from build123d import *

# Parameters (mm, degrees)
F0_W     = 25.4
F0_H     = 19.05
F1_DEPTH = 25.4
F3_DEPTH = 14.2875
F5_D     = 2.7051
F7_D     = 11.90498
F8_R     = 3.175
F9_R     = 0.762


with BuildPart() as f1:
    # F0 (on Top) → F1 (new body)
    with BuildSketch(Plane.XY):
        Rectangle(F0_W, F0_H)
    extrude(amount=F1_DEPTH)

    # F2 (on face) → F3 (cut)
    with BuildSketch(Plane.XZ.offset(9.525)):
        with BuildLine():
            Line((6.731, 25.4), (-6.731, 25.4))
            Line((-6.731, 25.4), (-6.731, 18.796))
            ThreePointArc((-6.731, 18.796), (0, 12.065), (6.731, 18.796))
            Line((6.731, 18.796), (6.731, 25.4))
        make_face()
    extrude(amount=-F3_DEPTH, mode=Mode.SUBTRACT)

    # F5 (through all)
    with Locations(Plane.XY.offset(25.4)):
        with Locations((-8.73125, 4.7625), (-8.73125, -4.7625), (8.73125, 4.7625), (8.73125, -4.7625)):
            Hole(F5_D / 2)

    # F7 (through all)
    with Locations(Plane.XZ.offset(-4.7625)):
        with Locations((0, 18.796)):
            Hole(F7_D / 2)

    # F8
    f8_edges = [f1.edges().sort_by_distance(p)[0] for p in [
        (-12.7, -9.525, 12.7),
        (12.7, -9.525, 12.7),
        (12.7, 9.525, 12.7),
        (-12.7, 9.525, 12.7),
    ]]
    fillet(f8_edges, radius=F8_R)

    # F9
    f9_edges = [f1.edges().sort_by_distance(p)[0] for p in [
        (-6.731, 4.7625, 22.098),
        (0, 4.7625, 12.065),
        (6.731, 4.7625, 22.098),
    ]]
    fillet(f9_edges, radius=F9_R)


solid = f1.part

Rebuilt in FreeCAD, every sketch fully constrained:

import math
import FreeCAD as App
import Part
import Sketcher
from FreeCAD import Vector
Q = App.Units.Quantity


def edges_at(feature, points):
    """Names of the edges that pass closest to the given points."""
    edges = feature.Shape.Edges
    near = lambda p: min(range(len(edges)), key=lambda i: edges[i].distToShape(Part.Vertex(*p))[0])
    return sorted({f"Edge{near(p) + 1}" for p in points})

doc = App.newDocument("Part")
body = doc.addObject("PartDesign::Body", "Body")

# Sketch on XY plane
sketch1 = body.newObject("Sketcher::SketchObject", "Sketch")
sketch1.AttachmentSupport = (doc.getObject("XY_Plane"), [""])
sketch1.MapMode = "FlatFace"
sketch1.addGeometry([
    Part.LineSegment(Vector(-12.7, 9.525, 0), Vector(-12.7, -9.525, 0)),
    Part.LineSegment(Vector(-12.7, -9.525, 0), Vector(12.7, -9.525, 0)),
    Part.LineSegment(Vector(12.7, -9.525, 0), Vector(12.7, 9.525, 0)),
    Part.LineSegment(Vector(12.7, 9.525, 0), Vector(-12.7, 9.525, 0)),
], False)
sketch1.addConstraint([
    Sketcher.Constraint("Coincident", 0, 2, 1, 1),
    Sketcher.Constraint("Coincident", 1, 2, 2, 1),
    Sketcher.Constraint("Coincident", 2, 2, 3, 1),
    Sketcher.Constraint("Coincident", 3, 2, 0, 1),
    Sketcher.Constraint("Vertical", 0),
    Sketcher.Constraint("Horizontal", 1),
    Sketcher.Constraint("Vertical", 2),
    Sketcher.Constraint("Horizontal", 3),
    Sketcher.Constraint("Symmetric", 0, 2, 2, 2, -1, 1),
    Sketcher.Constraint("DistanceX", 1, 1, 1, 2, Q("1 in")),
    Sketcher.Constraint("DistanceY", 0, 2, 0, 1, Q("0.75 in")),
])
pad1 = body.newObject("PartDesign::Pad", "Pad")
pad1.Profile = sketch1
pad1.Length = Q("1 in")

# Sketch on XZ plane
sketch2 = body.newObject("Sketcher::SketchObject", "Sketch001")
sketch2.AttachmentSupport = (doc.getObject("XZ_Plane"), [""])
sketch2.MapMode = "FlatFace"
sketch2.AttachmentOffset = App.Placement(Vector(0, 0, 0.375 * 25.4), App.Rotation())
sketch2.addGeometry([
    Part.LineSegment(Vector(6.731, 25.4, 0), Vector(-6.731, 25.4, 0)),
    Part.LineSegment(Vector(-6.731, 25.4, 0), Vector(-6.731, 18.796, 0)),
    Part.ArcOfCircle(Part.Circle(Vector(0, 18.796, 0), Vector(0, 0, 1), 6.731), math.radians(180), math.radians(360)),
    Part.LineSegment(Vector(6.731, 18.796, 0), Vector(6.731, 25.4, 0)),
], False)
sketch2.addConstraint([
    Sketcher.Constraint("Coincident", 0, 2, 1, 1),
    Sketcher.Constraint("Tangent", 1, 2, 2, 1),
    Sketcher.Constraint("Tangent", 2, 2, 3, 1),
    Sketcher.Constraint("Coincident", 3, 2, 0, 1),
    Sketcher.Constraint("Horizontal", 0),
    Sketcher.Constraint("Vertical", 1),
    Sketcher.Constraint("Vertical", 3),
    Sketcher.Constraint("PointOnObject", 2, 3, -2),
    Sketcher.Constraint("DistanceY", -1, 1, 0, 2, Q("1 in")),
    Sketcher.Constraint("Radius", 2, Q("0.265 in")),
    Sketcher.Constraint("DistanceY", 1, 2, 1, 1, Q("0.26 in")),
])
pocket1 = body.newObject("PartDesign::Pocket", "Pocket")
pocket1.Profile = sketch2
pocket1.Length = Q("0.5625 in")

# Sketch on XY plane
sketch3 = body.newObject("Sketcher::SketchObject", "Sketch002")
sketch3.AttachmentSupport = (doc.getObject("XY_Plane"), [""])
sketch3.MapMode = "FlatFace"
sketch3.AttachmentOffset = App.Placement(Vector(0, 0, 1 * 25.4), App.Rotation())
sketch3.addGeometry([
    Part.Circle(Vector(-8.73125, 4.7625, 0), Vector(0, 0, 1), 1.35255),
    Part.Circle(Vector(-8.73125, -4.7625, 0), Vector(0, 0, 1), 1.35255),
    Part.Circle(Vector(8.73125, 4.7625, 0), Vector(0, 0, 1), 1.35255),
    Part.Circle(Vector(8.73125, -4.7625, 0), Vector(0, 0, 1), 1.35255),
], False)
sketch3.addConstraint([
    Sketcher.Constraint("Equal", 0, 1),
    Sketcher.Constraint("Equal", 1, 2),
    Sketcher.Constraint("Equal", 2, 3),
    Sketcher.Constraint("Symmetric", 1, 3, 2, 3, -1, 1),
    Sketcher.Constraint("Symmetric", 0, 3, 3, 3, -1, 1),
    Sketcher.Constraint("Symmetric", 0, 3, 2, 3, -2),
    Sketcher.Constraint("Diameter", 0, Q("0.1065 in")),
    Sketcher.Constraint("DistanceX", 0, 3, -1, 1, Q("0.34375 in")),
    Sketcher.Constraint("DistanceY", -1, 1, 0, 3, Q("0.1875 in")),
])
doc.recompute()
hole = body.newObject("PartDesign::Hole", "Hole")
hole.Profile = sketch3
hole.ThreadType = "None"
hole.Diameter = Q("0.1065 in")
hole.DepthType = "ThroughAll"

# Sketch on XZ plane
sketch4 = body.newObject("Sketcher::SketchObject", "Sketch003")
sketch4.AttachmentSupport = (doc.getObject("XZ_Plane"), [""])
sketch4.MapMode = "FlatFace"
sketch4.AttachmentOffset = App.Placement(Vector(0, 0, -0.1875 * 25.4), App.Rotation())
sketch4.addGeometry(Part.Circle(Vector(0, 18.796, 0), Vector(0, 0, 1), 5.95249), False)
sketch4.addConstraint([
    Sketcher.Constraint("PointOnObject", 0, 3, -2),
    Sketcher.Constraint("Diameter", 0, Q("0.4687 in")),
    Sketcher.Constraint("DistanceY", -1, 1, 0, 3, Q("0.74 in")),
])
doc.recompute()
hole2 = body.newObject("PartDesign::Hole", "Hole001")
hole2.Profile = sketch4
hole2.ThreadType = "None"
hole2.Diameter = Q("0.4687 in")
hole2.DepthType = "ThroughAll"
doc.recompute()

fillet = body.newObject("PartDesign::Fillet", "Fillet")
fillet.Base = (hole2, edges_at(hole2, [
    (-12.7, -9.525, 12.7),
    (12.7, -9.525, 12.7),
    (12.7, 9.525, 12.7),
    (-12.7, 9.525, 12.7),
]))
fillet.Radius = Q("0.125 in")
doc.recompute()

fillet2 = body.newObject("PartDesign::Fillet", "Fillet001")
fillet2.Base = (fillet, edges_at(fillet, [(-6.731, 4.763, 22.098), (0, 4.763, 12.065), (6.731, 4.763, 22.098)]))
fillet2.Radius = Q("0.03 in")

doc.recompute()
